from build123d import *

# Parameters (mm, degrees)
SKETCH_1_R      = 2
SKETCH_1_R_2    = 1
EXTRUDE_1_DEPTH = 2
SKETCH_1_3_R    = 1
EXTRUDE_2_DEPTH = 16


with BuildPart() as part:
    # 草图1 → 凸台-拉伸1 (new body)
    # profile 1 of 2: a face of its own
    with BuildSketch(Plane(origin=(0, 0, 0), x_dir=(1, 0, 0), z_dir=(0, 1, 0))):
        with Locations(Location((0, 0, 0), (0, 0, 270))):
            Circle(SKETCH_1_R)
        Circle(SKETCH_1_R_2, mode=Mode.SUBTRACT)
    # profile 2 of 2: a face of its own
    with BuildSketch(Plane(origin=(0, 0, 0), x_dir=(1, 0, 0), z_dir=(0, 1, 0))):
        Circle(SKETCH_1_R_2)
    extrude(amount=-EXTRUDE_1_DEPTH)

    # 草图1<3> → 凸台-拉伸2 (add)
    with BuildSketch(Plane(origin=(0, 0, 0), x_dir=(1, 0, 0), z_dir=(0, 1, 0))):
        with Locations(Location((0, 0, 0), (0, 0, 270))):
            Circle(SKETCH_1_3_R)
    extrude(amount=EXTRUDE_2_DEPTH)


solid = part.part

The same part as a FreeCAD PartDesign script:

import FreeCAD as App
import Part
import Sketcher

doc = App.newDocument("Part")
params = doc.addObject("Spreadsheet::Sheet", "Params")
for row, (alias, value) in enumerate([
    ("sketch1_diameter", "4 mm"),
    ("pad1_length", "2 mm"),
    ("sketch2_diameter", "2 mm"),
    ("pad2_length", "16 mm"),
], start=1):
    params.set(f"A{row}", alias)
    params.set(f"B{row}", "=" + value)
    params.setAlias(f"B{row}", alias)

body = doc.addObject("PartDesign::Body", "Body")

sketch1 = body.newObject("Sketcher::SketchObject", "Sketch")
sketch1.AttachmentSupport = (doc.getObject("XZ_Plane"), [""])
sketch1.MapMode = "FlatFace"
sketch1.addGeometry(Part.Circle(App.Vector(0, 0, 0), App.Vector(0, 0, 1), 2), False)
sketch1.addConstraint(Sketcher.Constraint("Coincident", 0, 3, -1, 1))
sketch1.addConstraint(Sketcher.Constraint("Diameter", 0, 4.0))
sketch1.setExpression("Constraints[1]", "Params.sketch1_diameter")
pad1 = body.newObject("PartDesign::Pad", "Pad")
pad1.Profile = sketch1
pad1.setExpression("Length", "Params.pad1_length")

sketch2 = body.newObject("Sketcher::SketchObject", "Sketch001")
sketch2.AttachmentSupport = (doc.getObject("XZ_Plane"), [""])
sketch2.MapMode = "FlatFace"
sketch2.addGeometry(Part.Circle(App.Vector(0, 0, 0), App.Vector(0, 0, 1), 1), False)
sketch2.addConstraint(Sketcher.Constraint("Coincident", 0, 3, -1, 1))
sketch2.addConstraint(Sketcher.Constraint("Diameter", 0, 2.0))
sketch2.setExpression("Constraints[1]", "Params.sketch2_diameter")
pad2 = body.newObject("PartDesign::Pad", "Pad001")
pad2.Profile = sketch2
pad2.setExpression("Length", "Params.pad2_length")
pad2.Reversed = True

doc.recompute()
